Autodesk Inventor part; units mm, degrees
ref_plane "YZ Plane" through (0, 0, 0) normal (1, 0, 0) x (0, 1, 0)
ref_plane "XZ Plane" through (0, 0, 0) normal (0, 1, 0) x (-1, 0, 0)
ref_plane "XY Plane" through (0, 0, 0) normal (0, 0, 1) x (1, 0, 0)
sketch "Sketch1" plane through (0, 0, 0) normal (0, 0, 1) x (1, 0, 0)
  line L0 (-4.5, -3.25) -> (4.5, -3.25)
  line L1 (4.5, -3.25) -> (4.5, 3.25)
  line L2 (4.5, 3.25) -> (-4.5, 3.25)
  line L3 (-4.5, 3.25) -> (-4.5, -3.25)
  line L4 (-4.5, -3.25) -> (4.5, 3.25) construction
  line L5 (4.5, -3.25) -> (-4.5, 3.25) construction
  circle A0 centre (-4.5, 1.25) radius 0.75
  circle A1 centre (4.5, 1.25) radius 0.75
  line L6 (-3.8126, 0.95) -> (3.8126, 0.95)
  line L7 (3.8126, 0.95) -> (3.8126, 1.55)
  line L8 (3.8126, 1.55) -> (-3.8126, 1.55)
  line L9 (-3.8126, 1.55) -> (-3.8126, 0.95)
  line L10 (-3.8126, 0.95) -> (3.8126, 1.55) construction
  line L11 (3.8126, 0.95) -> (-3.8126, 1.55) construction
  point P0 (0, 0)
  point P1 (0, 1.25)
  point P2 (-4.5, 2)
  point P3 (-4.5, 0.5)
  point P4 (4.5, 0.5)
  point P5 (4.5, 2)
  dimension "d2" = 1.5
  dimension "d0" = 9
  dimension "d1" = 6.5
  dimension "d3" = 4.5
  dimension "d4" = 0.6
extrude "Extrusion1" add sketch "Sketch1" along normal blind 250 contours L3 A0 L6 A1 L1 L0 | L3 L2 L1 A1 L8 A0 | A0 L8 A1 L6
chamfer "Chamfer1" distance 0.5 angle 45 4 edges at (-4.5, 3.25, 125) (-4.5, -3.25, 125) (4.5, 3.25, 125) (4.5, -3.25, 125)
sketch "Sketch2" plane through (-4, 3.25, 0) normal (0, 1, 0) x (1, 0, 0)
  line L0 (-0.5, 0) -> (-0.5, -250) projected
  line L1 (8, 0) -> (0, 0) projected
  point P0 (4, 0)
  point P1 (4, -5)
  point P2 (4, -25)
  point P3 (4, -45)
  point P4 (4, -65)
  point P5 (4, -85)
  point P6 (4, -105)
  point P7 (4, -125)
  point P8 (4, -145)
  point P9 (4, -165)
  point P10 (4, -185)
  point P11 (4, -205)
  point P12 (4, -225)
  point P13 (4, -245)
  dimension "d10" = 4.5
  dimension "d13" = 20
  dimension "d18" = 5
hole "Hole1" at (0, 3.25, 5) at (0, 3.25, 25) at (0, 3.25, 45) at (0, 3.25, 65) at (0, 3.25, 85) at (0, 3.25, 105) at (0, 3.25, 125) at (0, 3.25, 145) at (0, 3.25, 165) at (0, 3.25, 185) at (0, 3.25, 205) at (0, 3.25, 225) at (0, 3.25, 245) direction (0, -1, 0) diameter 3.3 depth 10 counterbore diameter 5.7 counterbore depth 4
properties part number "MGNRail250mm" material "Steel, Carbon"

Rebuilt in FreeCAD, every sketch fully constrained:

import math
import FreeCAD as App
import Part
import Sketcher


def edges_at(feature, points):
    """Names of the edges that pass closest to the given points."""
    edges = feature.Shape.Edges
    near = lambda p: min(range(len(edges)), key=lambda i: edges[i].distToShape(Part.Vertex(*p))[0])
    return sorted({f"Edge{near(p) + 1}" for p in points})

doc = App.newDocument("Part")
params = doc.addObject("Spreadsheet::Sheet", "Params")
for row, (alias, value) in enumerate([
    ("sketch1_width", "9 mm"),
    ("sketch1_radius", "0.75 mm"),
    ("pad1_length", "250 mm"),
    ("chamfer_size", "0.5 mm"),
    ("sketch2_diameter", "3.3 mm"),
    ("hole_diameter", "3.3 mm"),
    ("hole_depth", "10 mm"),
    ("hole_cbore_diameter", "5.7 mm"),
    ("hole_cbore_depth", "4 mm"),
], start=1):
    params.set(f"A{row}", alias)
    params.set(f"B{row}", "=" + value)
    params.setAlias(f"B{row}", alias)

body = doc.addObject("PartDesign::Body", "Body")

# Sketch on XY plane
sketch1 = body.newObject("Sketcher::SketchObject", "Sketch")
sketch1.AttachmentSupport = (doc.getObject("XY_Plane"), [""])
sketch1.MapMode = "FlatFace"
sketch1.addGeometry([
    Part.LineSegment(App.Vector(-4.5, 0.5, 0), App.Vector(-4.5, -3.2, 0)),  # 0
    Part.LineSegment(App.Vector(-4.5, -3.2, 0), App.Vector(4.5, -3.2, 0)),  # 1
    Part.LineSegment(App.Vector(4.5, -3.2, 0), App.Vector(4.5, 0.5, 0)),  # 2
    Part.ArcOfCircle(Part.Circle(App.Vector(4.5, 1.2, 0), App.Vector(0, 0, 1), 0.8), math.radians(90), math.radians(270)),  # 3
    Part.LineSegment(App.Vector(4.5, 2, 0), App.Vector(4.5, 3.2, 0)),  # 4
    Part.LineSegment(App.Vector(4.5, 3.2, 0), App.Vector(-4.5, 3.2, 0)),  # 5
    Part.LineSegment(App.Vector(-4.5, 3.2, 0), App.Vector(-4.5, 2, 0)),  # 6
    Part.ArcOfCircle(Part.Circle(App.Vector(-4.5, 1.2, 0), App.Vector(0, 0, 1), 0.8), math.radians(-90), math.radians(90)),  # 7
], False)
sketch1.addConstraint([
    Sketcher.Constraint("Coincident", 0, 2, 1, 1),
    Sketcher.Constraint("Coincident", 1, 2, 2, 1),
    Sketcher.Constraint("Coincident", 2, 2, 3, 2),
    Sketcher.Constraint("Coincident", 3, 1, 4, 1),
    Sketcher.Constraint("Coincident", 4, 2, 5, 1),
    Sketcher.Constraint("Coincident", 5, 2, 6, 1),
    Sketcher.Constraint("Coincident", 6, 2, 7, 2),
    Sketcher.Constraint("Coincident", 7, 1, 0, 1),
    Sketcher.Constraint("Vertical", 0),
    Sketcher.Constraint("Horizontal", 1),
    Sketcher.Constraint("Vertical", 2),
    Sketcher.Constraint("Vertical", 4),
    Sketcher.Constraint("Horizontal", 5),
    Sketcher.Constraint("Vertical", 6),
    Sketcher.Constraint("Equal", 3, 7),
    Sketcher.Constraint("Symmetric", 0, 2, 4, 2, -1, 1),
    Sketcher.Constraint("Symmetric", 3, 3, 7, 3, -2),
    Sketcher.Constraint("Vertical", 7, 3, 0, 2),
    Sketcher.Constraint("Vertical", 3, 3, 1, 2),
    Sketcher.Constraint("Vertical", 0, 2, 5, 2),
    Sketcher.Constraint("DistanceX", 1, 1, 1, 2, 9.0),
    Sketcher.Constraint("Radius", 3, 0.75),
    Sketcher.Constraint("DistanceY", 0, 2, 7, 3, 4.5),
    Sketcher.Constraint("DistanceY", 1, 2, 4, 2, 6.5),
])
sketch1.setExpression("Constraints[20]", "Params.sketch1_width")
sketch1.setExpression("Constraints[21]", "Params.sketch1_radius")
pad1 = body.newObject("PartDesign::Pad", "Pad")
pad1.Profile = sketch1
pad1.setExpression("Length", "Params.pad1_length")
doc.recompute()

chamfer = body.newObject("PartDesign::Chamfer", "Chamfer")
chamfer.Base = (pad1, edges_at(pad1, [
    (-4.5, 3.25, 125),
    (-4.5, -3.25, 125),
    (4.5, 3.25, 125),
    (4.5, -3.25, 125),
]))
chamfer.setExpression("Size", "Params.chamfer_size")

# Sketch on XZ plane
sketch2 = body.newObject("Sketcher::SketchObject", "Sketch001")
sketch2.AttachmentSupport = (doc.getObject("XZ_Plane"), [""])
sketch2.MapMode = "FlatFace"
sketch2.AttachmentOffset = App.Placement(App.Vector(0, 0, -3.25), App.Rotation())
sketch2.addGeometry([
    Part.Circle(App.Vector(0, 5, 0), App.Vector(0, 0, 1), 1.6),  # 0
    Part.Circle(App.Vector(0, 25, 0), App.Vector(0, 0, 1), 1.6),  # 1
    Part.Circle(App.Vector(0, 45, 0), App.Vector(0, 0, 1), 1.6),  # 2
    Part.Circle(App.Vector(0, 65, 0), App.Vector(0, 0, 1), 1.6),  # 3
    Part.Circle(App.Vector(0, 85, 0), App.Vector(0, 0, 1), 1.6),  # 4
    Part.Circle(App.Vector(0, 105, 0), App.Vector(0, 0, 1), 1.6),  # 5
    Part.Circle(App.Vector(0, 125, 0), App.Vector(0, 0, 1), 1.6),  # 6
    Part.Circle(App.Vector(0, 145, 0), App.Vector(0, 0, 1), 1.6),  # 7
    Part.Circle(App.Vector(0, 165, 0), App.Vector(0, 0, 1), 1.6),  # 8
    Part.Circle(App.Vector(0, 185, 0), App.Vector(0, 0, 1), 1.6),  # 9
    Part.Circle(App.Vector(0, 205, 0), App.Vector(0, 0, 1), 1.6),  # 10
    Part.Circle(App.Vector(0, 225, 0), App.Vector(0, 0, 1), 1.6),  # 11
    Part.Circle(App.Vector(0, 245, 0), App.Vector(0, 0, 1), 1.6),  # 12
], False)
sketch2.addConstraint([
    Sketcher.Constraint("Equal", 0, 1),
    Sketcher.Constraint("Equal", 1, 2),
    Sketcher.Constraint("Equal", 2, 3),
    Sketcher.Constraint("Equal", 3, 4),
    Sketcher.Constraint("Equal", 4, 5),
    Sketcher.Constraint("Equal", 5, 6),
    Sketcher.Constraint("Equal", 6, 7),
    Sketcher.Constraint("Equal", 7, 8),
    Sketcher.Constraint("Equal", 8, 9),
    Sketcher.Constraint("Equal", 9, 10),
    Sketcher.Constraint("Equal", 10, 11),
    Sketcher.Constraint("Equal", 11, 12),
    Sketcher.Constraint("PointOnObject", 0, 3, -2),
    Sketcher.Constraint("PointOnObject", 1, 3, -2),
    Sketcher.Constraint("PointOnObject", 2, 3, -2),
    Sketcher.Constraint("PointOnObject", 3, 3, -2),
    Sketcher.Constraint("PointOnObject", 4, 3, -2),
    Sketcher.Constraint("PointOnObject", 5, 3, -2),
    Sketcher.Constraint("PointOnObject", 6, 3, -2),
    Sketcher.Constraint("PointOnObject", 7, 3, -2),
    Sketcher.Constraint("PointOnObject", 8, 3, -2),
    Sketcher.Constraint("PointOnObject", 9, 3, -2),
    Sketcher.Constraint("PointOnObject", 10, 3, -2),
    Sketcher.Constraint("PointOnObject", 11, 3, -2),
    Sketcher.Constraint("PointOnObject", 12, 3, -2),
    Sketcher.Constraint("Diameter", 0, 3.3),
    Sketcher.Constraint("DistanceY", -1, 1, 0, 3, 5.0),
    Sketcher.Constraint("DistanceY", -1, 1, 1, 3, 25.0),
    Sketcher.Constraint("DistanceY", -1, 1, 2, 3, 45.0),
    Sketcher.Constraint("DistanceY", -1, 1, 3, 3, 65.0),
    Sketcher.Constraint("DistanceY", -1, 1, 4, 3, 85.0),
    Sketcher.Constraint("DistanceY", -1, 1, 5, 3, 105.0),
    Sketcher.Constraint("DistanceY", -1, 1, 6, 3, 125.0),
    Sketcher.Constraint("DistanceY", -1, 1, 7, 3, 145.0),
    Sketcher.Constraint("DistanceY", -1, 1, 8, 3, 165.0),
    Sketcher.Constraint("DistanceY", -1, 1, 9, 3, 185.0),
    Sketcher.Constraint("DistanceY", -1, 1, 10, 3, 205.0),
    Sketcher.Constraint("DistanceY", -1, 1, 11, 3, 225.0),
    Sketcher.Constraint("DistanceY", -1, 1, 12, 3, 245.0),
])
sketch2.setExpression("Constraints[25]", "Params.sketch2_diameter")
doc.recompute()
hole = body.newObject("PartDesign::Hole", "Hole")
hole.Profile = sketch2
hole.ThreadType = "None"
hole.setExpression("Diameter", "Params.hole_diameter")
hole.DepthType = "Dimension"
hole.setExpression("Depth", "Params.hole_depth")
hole.DrillPoint = "Flat"
hole.HoleCutType = "Counterbore"
hole.setExpression("HoleCutDiameter", "Params.hole_cbore_diameter")
hole.setExpression("HoleCutDepth", "Params.hole_cbore_depth")
hole.Reversed = True

doc.recompute()
